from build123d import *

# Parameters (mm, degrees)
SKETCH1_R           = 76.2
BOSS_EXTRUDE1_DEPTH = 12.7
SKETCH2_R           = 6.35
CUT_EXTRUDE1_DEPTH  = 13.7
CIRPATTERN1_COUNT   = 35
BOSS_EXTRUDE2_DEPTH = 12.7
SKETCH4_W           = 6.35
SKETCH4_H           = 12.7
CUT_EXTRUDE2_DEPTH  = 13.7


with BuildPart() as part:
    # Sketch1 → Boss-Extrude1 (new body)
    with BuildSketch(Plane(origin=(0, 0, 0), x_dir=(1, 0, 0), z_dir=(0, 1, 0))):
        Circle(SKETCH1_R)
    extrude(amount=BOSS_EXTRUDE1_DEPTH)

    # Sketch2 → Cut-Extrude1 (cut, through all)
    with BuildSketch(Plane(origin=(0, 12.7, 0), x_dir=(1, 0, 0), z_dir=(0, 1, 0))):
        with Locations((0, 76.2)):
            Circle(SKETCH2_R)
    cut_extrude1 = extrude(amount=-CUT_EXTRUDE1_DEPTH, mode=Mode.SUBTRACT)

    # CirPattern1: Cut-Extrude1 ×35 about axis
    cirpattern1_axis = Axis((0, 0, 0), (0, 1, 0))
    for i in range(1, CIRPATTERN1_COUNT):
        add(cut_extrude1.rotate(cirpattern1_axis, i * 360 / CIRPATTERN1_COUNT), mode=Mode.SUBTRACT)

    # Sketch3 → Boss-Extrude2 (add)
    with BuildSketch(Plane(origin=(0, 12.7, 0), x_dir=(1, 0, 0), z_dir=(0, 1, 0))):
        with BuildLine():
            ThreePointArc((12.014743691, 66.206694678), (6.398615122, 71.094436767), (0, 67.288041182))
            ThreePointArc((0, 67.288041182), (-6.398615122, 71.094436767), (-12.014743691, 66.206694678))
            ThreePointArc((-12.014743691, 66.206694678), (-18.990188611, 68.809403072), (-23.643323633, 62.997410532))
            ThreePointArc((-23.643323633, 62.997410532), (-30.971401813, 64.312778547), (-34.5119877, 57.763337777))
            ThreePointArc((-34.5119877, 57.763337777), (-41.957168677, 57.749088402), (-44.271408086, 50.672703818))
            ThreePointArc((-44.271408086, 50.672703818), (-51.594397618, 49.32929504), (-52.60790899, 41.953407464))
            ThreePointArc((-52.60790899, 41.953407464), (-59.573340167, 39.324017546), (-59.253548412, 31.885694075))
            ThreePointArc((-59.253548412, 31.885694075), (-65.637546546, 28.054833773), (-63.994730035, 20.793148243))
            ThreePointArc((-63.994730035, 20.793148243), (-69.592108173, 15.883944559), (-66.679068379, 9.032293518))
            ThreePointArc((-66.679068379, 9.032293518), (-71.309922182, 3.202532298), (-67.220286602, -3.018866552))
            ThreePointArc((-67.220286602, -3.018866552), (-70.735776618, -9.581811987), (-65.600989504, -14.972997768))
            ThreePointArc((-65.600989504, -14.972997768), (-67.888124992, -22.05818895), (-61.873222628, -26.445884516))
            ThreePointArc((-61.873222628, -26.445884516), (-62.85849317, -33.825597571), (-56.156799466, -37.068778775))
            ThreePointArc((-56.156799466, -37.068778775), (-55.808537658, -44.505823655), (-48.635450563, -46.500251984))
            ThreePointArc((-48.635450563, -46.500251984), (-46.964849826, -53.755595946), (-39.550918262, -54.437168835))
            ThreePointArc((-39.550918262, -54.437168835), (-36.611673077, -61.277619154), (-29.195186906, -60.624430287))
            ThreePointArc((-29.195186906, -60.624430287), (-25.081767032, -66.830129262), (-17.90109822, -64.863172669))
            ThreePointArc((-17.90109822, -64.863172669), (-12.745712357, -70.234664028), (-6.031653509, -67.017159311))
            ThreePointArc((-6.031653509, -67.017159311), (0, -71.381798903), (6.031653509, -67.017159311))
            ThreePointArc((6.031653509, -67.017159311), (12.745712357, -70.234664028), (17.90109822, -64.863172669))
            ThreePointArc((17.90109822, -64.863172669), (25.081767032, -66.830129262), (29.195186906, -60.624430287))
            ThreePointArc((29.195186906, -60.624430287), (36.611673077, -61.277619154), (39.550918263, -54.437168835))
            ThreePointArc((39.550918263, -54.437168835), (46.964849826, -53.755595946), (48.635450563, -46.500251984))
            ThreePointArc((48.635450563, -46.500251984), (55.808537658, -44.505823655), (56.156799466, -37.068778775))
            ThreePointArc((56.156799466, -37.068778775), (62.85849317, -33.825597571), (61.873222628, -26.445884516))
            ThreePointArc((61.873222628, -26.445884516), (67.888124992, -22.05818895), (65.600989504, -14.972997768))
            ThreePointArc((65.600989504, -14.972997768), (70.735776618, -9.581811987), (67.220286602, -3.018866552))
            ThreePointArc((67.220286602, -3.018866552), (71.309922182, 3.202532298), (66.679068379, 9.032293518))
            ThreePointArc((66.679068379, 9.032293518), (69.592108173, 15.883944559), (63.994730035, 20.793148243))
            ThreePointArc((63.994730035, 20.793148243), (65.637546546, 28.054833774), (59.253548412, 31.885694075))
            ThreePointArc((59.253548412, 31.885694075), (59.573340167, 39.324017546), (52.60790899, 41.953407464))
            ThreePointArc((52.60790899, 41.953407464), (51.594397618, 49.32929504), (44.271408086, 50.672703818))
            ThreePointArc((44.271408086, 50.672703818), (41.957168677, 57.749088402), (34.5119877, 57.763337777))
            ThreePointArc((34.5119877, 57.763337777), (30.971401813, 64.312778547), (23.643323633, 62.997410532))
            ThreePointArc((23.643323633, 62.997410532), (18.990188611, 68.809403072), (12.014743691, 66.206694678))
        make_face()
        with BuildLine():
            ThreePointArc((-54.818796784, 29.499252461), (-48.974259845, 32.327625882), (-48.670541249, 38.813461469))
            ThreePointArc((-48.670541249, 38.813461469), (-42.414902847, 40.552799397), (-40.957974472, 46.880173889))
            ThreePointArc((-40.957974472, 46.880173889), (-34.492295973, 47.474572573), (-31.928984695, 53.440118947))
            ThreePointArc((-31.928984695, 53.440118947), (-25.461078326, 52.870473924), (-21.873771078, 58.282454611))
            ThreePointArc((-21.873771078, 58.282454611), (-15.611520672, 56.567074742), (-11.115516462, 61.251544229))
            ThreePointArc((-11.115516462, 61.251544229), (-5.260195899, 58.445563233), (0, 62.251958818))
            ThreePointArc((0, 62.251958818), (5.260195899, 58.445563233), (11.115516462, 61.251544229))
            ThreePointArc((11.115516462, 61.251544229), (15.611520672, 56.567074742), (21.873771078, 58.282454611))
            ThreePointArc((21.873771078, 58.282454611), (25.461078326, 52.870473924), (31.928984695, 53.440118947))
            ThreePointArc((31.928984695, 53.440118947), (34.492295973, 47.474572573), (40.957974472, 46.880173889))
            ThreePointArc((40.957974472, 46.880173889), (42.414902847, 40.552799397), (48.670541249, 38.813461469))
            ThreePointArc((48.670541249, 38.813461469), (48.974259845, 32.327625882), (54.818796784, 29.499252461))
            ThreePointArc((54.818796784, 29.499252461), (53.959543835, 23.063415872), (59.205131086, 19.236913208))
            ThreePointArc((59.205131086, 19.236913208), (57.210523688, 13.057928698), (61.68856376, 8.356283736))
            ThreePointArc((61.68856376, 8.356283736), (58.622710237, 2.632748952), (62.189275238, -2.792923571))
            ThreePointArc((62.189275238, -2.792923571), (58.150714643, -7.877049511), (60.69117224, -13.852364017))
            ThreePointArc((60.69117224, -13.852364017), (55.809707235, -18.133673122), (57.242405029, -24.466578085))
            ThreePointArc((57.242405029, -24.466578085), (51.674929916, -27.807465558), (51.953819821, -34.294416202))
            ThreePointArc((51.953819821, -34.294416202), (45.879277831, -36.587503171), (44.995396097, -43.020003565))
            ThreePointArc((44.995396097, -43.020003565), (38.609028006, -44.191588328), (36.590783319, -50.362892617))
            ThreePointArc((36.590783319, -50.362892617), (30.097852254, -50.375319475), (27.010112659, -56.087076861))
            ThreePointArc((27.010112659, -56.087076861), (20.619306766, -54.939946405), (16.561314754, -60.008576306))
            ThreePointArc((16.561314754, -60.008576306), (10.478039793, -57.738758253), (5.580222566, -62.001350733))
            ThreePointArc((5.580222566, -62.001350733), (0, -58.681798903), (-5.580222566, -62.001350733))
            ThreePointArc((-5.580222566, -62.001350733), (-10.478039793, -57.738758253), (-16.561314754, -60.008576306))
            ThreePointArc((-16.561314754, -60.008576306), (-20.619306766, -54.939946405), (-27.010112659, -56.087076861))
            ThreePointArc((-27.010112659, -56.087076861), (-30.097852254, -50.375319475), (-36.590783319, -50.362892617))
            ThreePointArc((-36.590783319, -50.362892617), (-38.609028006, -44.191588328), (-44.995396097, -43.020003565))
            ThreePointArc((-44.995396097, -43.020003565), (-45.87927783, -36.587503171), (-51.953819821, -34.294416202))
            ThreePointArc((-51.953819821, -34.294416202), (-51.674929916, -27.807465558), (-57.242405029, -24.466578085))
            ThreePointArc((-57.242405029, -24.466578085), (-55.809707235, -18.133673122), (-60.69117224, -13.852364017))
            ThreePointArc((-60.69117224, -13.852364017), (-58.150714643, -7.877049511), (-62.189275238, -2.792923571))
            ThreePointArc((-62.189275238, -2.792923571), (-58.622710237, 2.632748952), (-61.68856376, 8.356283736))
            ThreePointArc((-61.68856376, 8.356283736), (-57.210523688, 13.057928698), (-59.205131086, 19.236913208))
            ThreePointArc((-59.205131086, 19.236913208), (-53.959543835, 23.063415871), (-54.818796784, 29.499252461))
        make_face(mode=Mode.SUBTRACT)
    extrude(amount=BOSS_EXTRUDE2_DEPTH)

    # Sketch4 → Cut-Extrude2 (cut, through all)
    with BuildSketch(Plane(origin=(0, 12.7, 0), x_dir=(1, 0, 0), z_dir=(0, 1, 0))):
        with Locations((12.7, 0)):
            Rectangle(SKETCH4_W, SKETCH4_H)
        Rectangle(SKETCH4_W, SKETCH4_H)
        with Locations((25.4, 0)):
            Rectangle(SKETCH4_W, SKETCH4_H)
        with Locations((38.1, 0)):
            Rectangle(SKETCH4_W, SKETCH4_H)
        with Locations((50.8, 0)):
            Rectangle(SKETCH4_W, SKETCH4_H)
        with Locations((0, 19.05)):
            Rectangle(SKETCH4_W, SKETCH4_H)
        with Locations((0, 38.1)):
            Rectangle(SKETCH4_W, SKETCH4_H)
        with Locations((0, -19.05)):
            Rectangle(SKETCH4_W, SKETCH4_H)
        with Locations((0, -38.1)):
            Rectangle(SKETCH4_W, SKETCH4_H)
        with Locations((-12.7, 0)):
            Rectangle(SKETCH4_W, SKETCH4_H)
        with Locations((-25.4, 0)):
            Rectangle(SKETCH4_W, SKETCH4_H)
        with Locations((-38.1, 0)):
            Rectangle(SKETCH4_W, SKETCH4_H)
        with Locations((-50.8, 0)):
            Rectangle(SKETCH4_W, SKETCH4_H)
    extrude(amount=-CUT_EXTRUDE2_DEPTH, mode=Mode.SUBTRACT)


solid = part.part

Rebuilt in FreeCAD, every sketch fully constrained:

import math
import FreeCAD as App
import Part
import Sketcher
Q = App.Units.Quantity


def add_polygon(sketch, points):
    """Adds a closed chain of lines whose ends are joined by coincident constraints."""
    first, n = sketch.GeometryCount, len(points)
    for a, b in zip(points, points[1:] + points[:1]):
        sketch.addGeometry(Part.LineSegment(App.Vector(*a, 0), App.Vector(*b, 0)), False)
    for i in range(n):
        sketch.addConstraint(Sketcher.Constraint("Coincident", first + i, 2, first + (i + 1) % n, 1))

doc = App.newDocument("Part")
body = doc.addObject("PartDesign::Body", "Body")

sketch1 = body.newObject("Sketcher::SketchObject", "Sketch")
sketch1.AttachmentSupport = (doc.getObject("XZ_Plane"), [""])
sketch1.MapMode = "FlatFace"
sketch1.addGeometry(Part.Circle(App.Vector(0, 0, 0), App.Vector(0, 0, 1), 76.2), False)
sketch1.addConstraint([
    Sketcher.Constraint("Coincident", 0, 3, -1, 1),
    Sketcher.Constraint("Diameter", 0, Q("6 in")),
])
pad1 = body.newObject("PartDesign::Pad", "Pad")
pad1.Profile = sketch1
pad1.Length = Q("0.5 in")
pad1.Reversed = True

sketch2 = body.newObject("Sketcher::SketchObject", "Sketch001")
sketch2.AttachmentSupport = (doc.getObject("XZ_Plane"), [""])
sketch2.MapMode = "FlatFace"
sketch2.AttachmentOffset = App.Placement(App.Vector(0, 0, -0.5 * 25.4), App.Rotation())
sketch2.addGeometry(Part.Circle(App.Vector(0, -76.2, 0), App.Vector(0, 0, 1), 6.35), False)
sketch2.addConstraint([
    Sketcher.Constraint("PointOnObject", 0, 3, -2),
    Sketcher.Constraint("Diameter", 0, Q("0.5 in")),
    Sketcher.Constraint("DistanceY", 0, 3, -1, 1, Q("3 in")),
])
pocket1 = body.newObject("PartDesign::Pocket", "Pocket")
pocket1.Profile = sketch2
pocket1.Type = "ThroughAll"
pocket1.Reversed = True
doc.recompute()

polarpattern = body.newObject("PartDesign::PolarPattern", "PolarPattern")
polarpattern.Originals = [pocket1]
polarpattern.Axis = (doc.getObject("Y_Axis"), [""])
polarpattern.Angle = 360
polarpattern.Occurrences = 35
body.Tip = polarpattern

sketch3 = body.newObject("Sketcher::SketchObject", "Sketch002")
sketch3.AttachmentSupport = (doc.getObject("XZ_Plane"), [""])
sketch3.MapMode = "FlatFace"
sketch3.AttachmentOffset = App.Placement(App.Vector(0, 0, -0.5 * 25.4), App.Rotation())
sketch3.addGeometry([
    Part.ArcOfCircle(Part.Circle(App.Vector(5.829406, -64.77, 0), App.Vector(0, 0, 1), 6.35), math.radians(-156.637826), math.radians(-13.07646)),
    Part.ArcOfCircle(Part.Circle(App.Vector(-5.829406, -64.77, 0), App.Vector(0, 0, 1), 6.35), math.radians(-166.92354), math.radians(-23.362174)),
    Part.ArcOfCircle(Part.Circle(App.Vector(-17.300855, -62.688239, 0), App.Vector(0, 0, 1), 6.35), math.radians(-177.209254), math.radians(-33.647889)),
    Part.ArcOfCircle(Part.Circle(App.Vector(-28.21624, -58.591626, 0), App.Vector(0, 0, 1), 6.35), math.radians(172.505031), math.radians(316.066397)),
    Part.ArcOfCircle(Part.Circle(App.Vector(-38.224732, -52.61183, 0), App.Vector(0, 0, 1), 6.35), math.radians(162.219317), math.radians(305.780683)),
    Part.ArcOfCircle(Part.Circle(App.Vector(-47.00465, -44.941047, 0), App.Vector(0, 0, 1), 6.35), math.radians(151.933603), math.radians(295.494969)),
    Part.ArcOfCircle(Part.Circle(App.Vector(-54.2738, -35.825822, 0), App.Vector(0, 0, 1), 6.35), math.radians(141.647889), math.radians(285.209254)),
    Part.ArcOfCircle(Part.Circle(App.Vector(-59.798545, -25.559125, 0), App.Vector(0, 0, 1), 6.35), math.radians(131.362174), math.radians(274.92354)),
    Part.ArcOfCircle(Part.Circle(App.Vector(-63.401316, -14.470937, 0), App.Vector(0, 0, 1), 6.35), math.radians(121.07646), math.radians(264.637826)),
    Part.ArcOfCircle(Part.Circle(App.Vector(-64.966316, -2.917641, 0), App.Vector(0, 0, 1), 6.35), math.radians(110.790746), math.radians(254.352111)),
    Part.ArcOfCircle(Part.Circle(App.Vector(-64.443246, 8.729431, 0), App.Vector(0, 0, 1), 6.35), math.radians(100.505031), math.radians(244.066397)),
    Part.ArcOfCircle(Part.Circle(App.Vector(-61.848916, 20.095931, 0), App.Vector(0, 0, 1), 6.35), math.radians(90.219317), math.radians(233.780683)),
    Part.ArcOfCircle(Part.Circle(App.Vector(-57.266712, 30.816532, 0), App.Vector(0, 0, 1), 6.35), math.radians(79.933603), math.radians(223.494969)),
    Part.ArcOfCircle(Part.Circle(App.Vector(-50.843908, 40.546663, 0), App.Vector(0, 0, 1), 6.35), math.radians(69.647889), math.radians(213.209254)),
    Part.ArcOfCircle(Part.Circle(App.Vector(-42.786939, 48.973592, 0), App.Vector(0, 0, 1), 6.35), math.radians(59.362174), math.radians(202.92354)),
    Part.ArcOfCircle(Part.Circle(App.Vector(-33.354763, 55.826469, 0), App.Vector(0, 0, 1), 6.35), math.radians(49.07646), math.radians(192.637826)),
    Part.ArcOfCircle(Part.Circle(App.Vector(-22.850537, 60.885038, 0), App.Vector(0, 0, 1), 6.35), math.radians(38.790746), math.radians(182.352111)),
    Part.ArcOfCircle(Part.Circle(App.Vector(-11.611876, 63.986711, 0), App.Vector(0, 0, 1), 6.35), math.radians(28.505031), math.radians(172.066397)),
    Part.ArcOfCircle(Part.Circle(App.Vector(0, 65.031799, 0), App.Vector(0, 0, 1), 6.35), math.radians(18.219317), math.radians(161.780683)),
    Part.ArcOfCircle(Part.Circle(App.Vector(11.611876, 63.986711, 0), App.Vector(0, 0, 1), 6.35), math.radians(7.933603), math.radians(151.494969)),
    Part.ArcOfCircle(Part.Circle(App.Vector(22.850537, 60.885038, 0), App.Vector(0, 0, 1), 6.35), math.radians(-2.352111), math.radians(141.209254)),
    Part.ArcOfCircle(Part.Circle(App.Vector(33.354763, 55.826469, 0), App.Vector(0, 0, 1), 6.35), math.radians(-12.637826), math.radians(130.92354)),
    Part.ArcOfCircle(Part.Circle(App.Vector(42.786939, 48.973592, 0), App.Vector(0, 0, 1), 6.35), math.radians(-22.92354), math.radians(120.637826)),
    Part.ArcOfCircle(Part.Circle(App.Vector(50.843908, 40.546663, 0), App.Vector(0, 0, 1), 6.35), math.radians(-33.209254), math.radians(110.352111)),
    Part.ArcOfCircle(Part.Circle(App.Vector(57.266712, 30.816532, 0), App.Vector(0, 0, 1), 6.35), math.radians(-43.494969), math.radians(100.066397)),
    Part.ArcOfCircle(Part.Circle(App.Vector(61.848916, 20.095931, 0), App.Vector(0, 0, 1), 6.35), math.radians(-53.780683), math.radians(89.780683)),
    Part.ArcOfCircle(Part.Circle(App.Vector(64.443246, 8.729431, 0), App.Vector(0, 0, 1), 6.35), math.radians(-64.066397), math.radians(79.494969)),
    Part.ArcOfCircle(Part.Circle(App.Vector(64.966316, -2.917641, 0), App.Vector(0, 0, 1), 6.35), math.radians(-74.352111), math.radians(69.209254)),
    Part.ArcOfCircle(Part.Circle(App.Vector(63.401316, -14.470937, 0), App.Vector(0, 0, 1), 6.35), math.radians(-84.637826), math.radians(58.92354)),
    Part.ArcOfCircle(Part.Circle(App.Vector(59.798545, -25.559125, 0), App.Vector(0, 0, 1), 6.35), math.radians(-94.92354), math.radians(48.637826)),
    Part.ArcOfCircle(Part.Circle(App.Vector(54.2738, -35.825822, 0), App.Vector(0, 0, 1), 6.35), math.radians(-105.209254), math.radians(38.352111)),
    Part.ArcOfCircle(Part.Circle(App.Vector(47.00465, -44.941047, 0), App.Vector(0, 0, 1), 6.35), math.radians(-115.494969), math.radians(28.066397)),
    Part.ArcOfCircle(Part.Circle(App.Vector(38.224732, -52.61183, 0), App.Vector(0, 0, 1), 6.35), math.radians(-125.780683), math.radians(17.780683)),
    Part.ArcOfCircle(Part.Circle(App.Vector(28.21624, -58.591626, 0), App.Vector(0, 0, 1), 6.35), math.radians(-136.066397), math.radians(7.494969)),
    Part.ArcOfCircle(Part.Circle(App.Vector(17.300855, -62.688239, 0), App.Vector(0, 0, 1), 6.35), math.radians(-146.352111), math.radians(-2.790746)),
    Part.ArcOfCircle(Part.Circle(App.Vector(-59.798545, -25.559125, 0), App.Vector(0, 0, 1), 6.35), math.radians(-38.352111), math.radians(84.637826)),
    Part.ArcOfCircle(Part.Circle(App.Vector(-54.2738, -35.825822, 0), App.Vector(0, 0, 1), 6.35), math.radians(-28.066397), math.radians(94.92354)),
    Part.ArcOfCircle(Part.Circle(App.Vector(-47.00465, -44.941047, 0), App.Vector(0, 0, 1), 6.35), math.radians(-17.780683), math.radians(105.209254)),
    Part.ArcOfCircle(Part.Circle(App.Vector(-38.224732, -52.61183, 0), App.Vector(0, 0, 1), 6.35), math.radians(-7.494969), math.radians(115.494969)),
    Part.ArcOfCircle(Part.Circle(App.Vector(-28.21624, -58.591626, 0), App.Vector(0, 0, 1), 6.35), math.radians(2.790746), math.radians(125.780683)),
    Part.ArcOfCircle(Part.Circle(App.Vector(-17.300855, -62.688239, 0), App.Vector(0, 0, 1), 6.35), math.radians(13.07646), math.radians(136.066397)),
    Part.ArcOfCircle(Part.Circle(App.Vector(-5.829406, -64.77, 0), App.Vector(0, 0, 1), 6.35), math.radians(23.362174), math.radians(146.352111)),
    Part.ArcOfCircle(Part.Circle(App.Vector(5.829406, -64.77, 0), App.Vector(0, 0, 1), 6.35), math.radians(33.647889), math.radians(156.637826)),
    Part.ArcOfCircle(Part.Circle(App.Vector(17.300855, -62.688239, 0), App.Vector(0, 0, 1), 6.35), math.radians(43.933603), math.radians(166.92354)),
    Part.ArcOfCircle(Part.Circle(App.Vector(28.21624, -58.591626, 0), App.Vector(0, 0, 1), 6.35), math.radians(54.219317), math.radians(177.209254)),
    Part.ArcOfCircle(Part.Circle(App.Vector(38.224732, -52.61183, 0), App.Vector(0, 0, 1), 6.35), math.radians(64.505031), math.radians(187.494969)),
    Part.ArcOfCircle(Part.Circle(App.Vector(47.00465, -44.941047, 0), App.Vector(0, 0, 1), 6.35), math.radians(74.790746), math.radians(197.780683)),
    Part.ArcOfCircle(Part.Circle(App.Vector(54.2738, -35.825822, 0), App.Vector(0, 0, 1), 6.35), math.radians(85.07646), math.radians(208.066397)),
    Part.ArcOfCircle(Part.Circle(App.Vector(59.798545, -25.559125, 0), App.Vector(0, 0, 1), 6.35), math.radians(95.362174), math.radians(218.352111)),
    Part.ArcOfCircle(Part.Circle(App.Vector(63.401316, -14.470937, 0), App.Vector(0, 0, 1), 6.35), math.radians(105.647889), math.radians(228.637826)),
    Part.ArcOfCircle(Part.Circle(App.Vector(64.966316, -2.917641, 0), App.Vector(0, 0, 1), 6.35), math.radians(115.933603), math.radians(238.92354)),
    Part.ArcOfCircle(Part.Circle(App.Vector(64.443246, 8.729431, 0), App.Vector(0, 0, 1), 6.35), math.radians(126.219317), math.radians(249.209254)),
    Part.ArcOfCircle(Part.Circle(App.Vector(61.848916, 20.095931, 0), App.Vector(0, 0, 1), 6.35), math.radians(136.505031), math.radians(259.494969)),
    Part.ArcOfCircle(Part.Circle(App.Vector(57.266712, 30.816532, 0), App.Vector(0, 0, 1), 6.35), math.radians(146.790746), math.radians(269.780683)),
    Part.ArcOfCircle(Part.Circle(App.Vector(50.843908, 40.546663, 0), App.Vector(0, 0, 1), 6.35), math.radians(157.07646), math.radians(280.066397)),
    Part.ArcOfCircle(Part.Circle(App.Vector(42.786939, 48.973592, 0), App.Vector(0, 0, 1), 6.35), math.radians(167.362174), math.radians(290.352111)),
    Part.ArcOfCircle(Part.Circle(App.Vector(33.354763, 55.826469, 0), App.Vector(0, 0, 1), 6.35), math.radians(177.647889), math.radians(300.637826)),
    Part.ArcOfCircle(Part.Circle(App.Vector(22.850537, 60.885038, 0), App.Vector(0, 0, 1), 6.35), math.radians(-172.066397), math.radians(-49.07646)),
    Part.ArcOfCircle(Part.Circle(App.Vector(11.611876, 63.986711, 0), App.Vector(0, 0, 1), 6.35), math.radians(-161.780683), math.radians(-38.790746)),
    Part.ArcOfCircle(Part.Circle(App.Vector(0, 65.031799, 0), App.Vector(0, 0, 1), 6.35), math.radians(-151.494969), math.radians(-28.505031)),
    Part.ArcOfCircle(Part.Circle(App.Vector(-11.611876, 63.986711, 0), App.Vector(0, 0, 1), 6.35), math.radians(-141.209254), math.radians(-18.219317)),
    Part.ArcOfCircle(Part.Circle(App.Vector(-22.850537, 60.885038, 0), App.Vector(0, 0, 1), 6.35), math.radians(-130.92354), math.radians(-7.933603)),
    Part.ArcOfCircle(Part.Circle(App.Vector(-33.354763, 55.826469, 0), App.Vector(0, 0, 1), 6.35), math.radians(-120.637826), math.radians(2.352111)),
    Part.ArcOfCircle(Part.Circle(App.Vector(-42.786939, 48.973592, 0), App.Vector(0, 0, 1), 6.35), math.radians(-110.352111), math.radians(12.637826)),
    Part.ArcOfCircle(Part.Circle(App.Vector(-50.843908, 40.546663, 0), App.Vector(0, 0, 1), 6.35), math.radians(-100.066397), math.radians(22.92354)),
    Part.ArcOfCircle(Part.Circle(App.Vector(-57.266712, 30.816532, 0), App.Vector(0, 0, 1), 6.35), math.radians(-89.780683), math.radians(33.209254)),
    Part.ArcOfCircle(Part.Circle(App.Vector(-61.848916, 20.095931, 0), App.Vector(0, 0, 1), 6.35), math.radians(-79.494969), math.radians(43.494969)),
    Part.ArcOfCircle(Part.Circle(App.Vector(-64.443246, 8.729431, 0), App.Vector(0, 0, 1), 6.35), math.radians(-69.209254), math.radians(53.780683)),
    Part.ArcOfCircle(Part.Circle(App.Vector(-64.966316, -2.917641, 0), App.Vector(0, 0, 1), 6.35), math.radians(-58.92354), math.radians(64.066397)),
    Part.ArcOfCircle(Part.Circle(App.Vector(-63.401316, -14.470937, 0), App.Vector(0, 0, 1), 6.35), math.radians(-48.637826), math.radians(74.352111)),
], False)
sketch3.addConstraint([
    Sketcher.Constraint("Coincident", 0, 1, 1, 2),
    Sketcher.Constraint("Coincident", 1, 1, 2, 2),
    Sketcher.Constraint("Coincident", 2, 1, 3, 2),
    Sketcher.Constraint("Coincident", 3, 1, 4, 2),
    Sketcher.Constraint("Coincident", 4, 1, 5, 2),
    Sketcher.Constraint("Coincident", 5, 1, 6, 2),
    Sketcher.Constraint("Coincident", 6, 1, 7, 2),
    Sketcher.Constraint("Coincident", 7, 1, 8, 2),
    Sketcher.Constraint("Coincident", 8, 1, 9, 2),
    Sketcher.Constraint("Coincident", 9, 1, 10, 2),
    Sketcher.Constraint("Coincident", 10, 1, 11, 2),
    Sketcher.Constraint("Coincident", 11, 1, 12, 2),
    Sketcher.Constraint("Coincident", 12, 1, 13, 2),
    Sketcher.Constraint("Coincident", 13, 1, 14, 2),
    Sketcher.Constraint("Coincident", 14, 1, 15, 2),
    Sketcher.Constraint("Coincident", 15, 1, 16, 2),
    Sketcher.Constraint("Coincident", 16, 1, 17, 2),
    Sketcher.Constraint("Coincident", 17, 1, 18, 2),
    Sketcher.Constraint("Coincident", 18, 1, 19, 2),
    Sketcher.Constraint("Coincident", 19, 1, 20, 2),
    Sketcher.Constraint("Coincident", 20, 1, 21, 2),
    Sketcher.Constraint("Coincident", 21, 1, 22, 2),
    Sketcher.Constraint("Coincident", 22, 1, 23, 2),
    Sketcher.Constraint("Coincident", 23, 1, 24, 2),
    Sketcher.Constraint("Coincident", 24, 1, 25, 2),
    Sketcher.Constraint("Coincident", 25, 1, 26, 2),
    Sketcher.Constraint("Coincident", 26, 1, 27, 2),
    Sketcher.Constraint("Coincident", 27, 1, 28, 2),
    Sketcher.Constraint("Coincident", 28, 1, 29, 2),
    Sketcher.Constraint("Coincident", 29, 1, 30, 2),
    Sketcher.Constraint("Coincident", 30, 1, 31, 2),
    Sketcher.Constraint("Coincident", 31, 1, 32, 2),
    Sketcher.Constraint("Coincident", 32, 1, 33, 2),
    Sketcher.Constraint("Coincident", 33, 1, 34, 2),
    Sketcher.Constraint("Coincident", 34, 1, 0, 2),
    Sketcher.Constraint("Coincident", 35, 1, 36, 2),
    Sketcher.Constraint("Coincident", 36, 1, 37, 2),
    Sketcher.Constraint("Coincident", 37, 1, 38, 2),
    Sketcher.Constraint("Coincident", 38, 1, 39, 2),
    Sketcher.Constraint("Coincident", 39, 1, 40, 2),
    Sketcher.Constraint("Coincident", 40, 1, 41, 2),
    Sketcher.Constraint("Coincident", 41, 1, 42, 2),
    Sketcher.Constraint("Coincident", 42, 1, 43, 2),
    Sketcher.Constraint("Coincident", 43, 1, 44, 2),
    Sketcher.Constraint("Coincident", 44, 1, 45, 2),
    Sketcher.Constraint("Coincident", 45, 1, 46, 2),
    Sketcher.Constraint("Coincident", 46, 1, 47, 2),
    Sketcher.Constraint("Coincident", 47, 1, 48, 2),
    Sketcher.Constraint("Coincident", 48, 1, 49, 2),
    Sketcher.Constraint("Coincident", 49, 1, 50, 2),
    Sketcher.Constraint("Coincident", 50, 1, 51, 2),
    Sketcher.Constraint("Coincident", 51, 1, 52, 2),
    Sketcher.Constraint("Coincident", 52, 1, 53, 2),
    Sketcher.Constraint("Coincident", 53, 1, 54, 2),
    Sketcher.Constraint("Coincident", 54, 1, 55, 2),
    Sketcher.Constraint("Coincident", 55, 1, 56, 2),
    Sketcher.Constraint("Coincident", 56, 1, 57, 2),
    Sketcher.Constraint("Coincident", 57, 1, 58, 2),
    Sketcher.Constraint("Coincident", 58, 1, 59, 2),
    Sketcher.Constraint("Coincident", 59, 1, 60, 2),
    Sketcher.Constraint("Coincident", 60, 1, 61, 2),
    Sketcher.Constraint("Coincident", 61, 1, 62, 2),
    Sketcher.Constraint("Coincident", 62, 1, 63, 2),
    Sketcher.Constraint("Coincident", 63, 1, 64, 2),
    Sketcher.Constraint("Coincident", 64, 1, 65, 2),
    Sketcher.Constraint("Coincident", 65, 1, 66, 2),
    Sketcher.Constraint("Coincident", 66, 1, 67, 2),
    Sketcher.Constraint("Coincident", 67, 1, 68, 2),
    Sketcher.Constraint("Coincident", 68, 1, 69, 2),
    Sketcher.Constraint("Coincident", 69, 1, 35, 2),
    Sketcher.Constraint("Coincident", 35, 3, 7, 3),
    Sketcher.Constraint("Coincident", 36, 3, 6, 3),
    Sketcher.Constraint("Coincident", 37, 3, 5, 3),
    Sketcher.Constraint("Coincident", 38, 3, 4, 3),
    Sketcher.Constraint("Coincident", 39, 3, 3, 3),
    Sketcher.Constraint("Coincident", 40, 3, 2, 3),
    Sketcher.Constraint("Coincident", 41, 3, 1, 3),
    Sketcher.Constraint("Coincident", 42, 3, 0, 3),
    Sketcher.Constraint("Coincident", 43, 3, 34, 3),
    Sketcher.Constraint("Coincident", 44, 3, 33, 3),
    Sketcher.Constraint("Coincident", 45, 3, 32, 3),
    Sketcher.Constraint("Coincident", 46, 3, 31, 3),
    Sketcher.Constraint("Coincident", 47, 3, 30, 3),
    Sketcher.Constraint("Coincident", 48, 3, 29, 3),
    Sketcher.Constraint("Coincident", 49, 3, 28, 3),
    Sketcher.Constraint("Coincident", 50, 3, 27, 3),
    Sketcher.Constraint("Coincident", 51, 3, 26, 3),
    Sketcher.Constraint("Coincident", 52, 3, 25, 3),
    Sketcher.Constraint("Coincident", 53, 3, 24, 3),
    Sketcher.Constraint("Coincident", 54, 3, 23, 3),
    Sketcher.Constraint("Coincident", 55, 3, 22, 3),
    Sketcher.Constraint("Coincident", 56, 3, 21, 3),
    Sketcher.Constraint("Coincident", 57, 3, 20, 3),
    Sketcher.Constraint("Coincident", 58, 3, 19, 3),
    Sketcher.Constraint("Coincident", 59, 3, 18, 3),
    Sketcher.Constraint("Coincident", 60, 3, 17, 3),
    Sketcher.Constraint("Coincident", 61, 3, 16, 3),
    Sketcher.Constraint("Coincident", 62, 3, 15, 3),
    Sketcher.Constraint("Coincident", 63, 3, 14, 3),
    Sketcher.Constraint("Coincident", 64, 3, 13, 3),
    Sketcher.Constraint("Coincident", 65, 3, 12, 3),
    Sketcher.Constraint("Coincident", 66, 3, 11, 3),
    Sketcher.Constraint("Coincident", 67, 3, 10, 3),
    Sketcher.Constraint("Coincident", 68, 3, 9, 3),
    Sketcher.Constraint("Coincident", 69, 3, 8, 3),
    Sketcher.Constraint("Equal", 0, 1),
    Sketcher.Constraint("Equal", 1, 2),
    Sketcher.Constraint("Equal", 2, 3),
    Sketcher.Constraint("Equal", 3, 4),
    Sketcher.Constraint("Equal", 4, 5),
    Sketcher.Constraint("Equal", 5, 6),
    Sketcher.Constraint("Equal", 6, 7),
    Sketcher.Constraint("Equal", 7, 8),
    Sketcher.Constraint("Equal", 8, 9),
    Sketcher.Constraint("Equal", 9, 10),
    Sketcher.Constraint("Equal", 10, 11),
    Sketcher.Constraint("Equal", 11, 12),
    Sketcher.Constraint("Equal", 12, 13),
    Sketcher.Constraint("Equal", 13, 14),
    Sketcher.Constraint("Equal", 14, 15),
    Sketcher.Constraint("Equal", 15, 16),
    Sketcher.Constraint("Equal", 16, 17),
    Sketcher.Constraint("Equal", 17, 18),
    Sketcher.Constraint("Equal", 18, 19),
    Sketcher.Constraint("Equal", 19, 20),
    Sketcher.Constraint("Equal", 20, 21),
    Sketcher.Constraint("Equal", 21, 22),
    Sketcher.Constraint("Equal", 22, 23),
    Sketcher.Constraint("Equal", 23, 24),
    Sketcher.Constraint("Equal", 24, 25),
    Sketcher.Constraint("Equal", 25, 26),
    Sketcher.Constraint("Equal", 26, 27),
    Sketcher.Constraint("Equal", 27, 28),
    Sketcher.Constraint("Equal", 28, 29),
    Sketcher.Constraint("Equal", 29, 30),
    Sketcher.Constraint("Equal", 30, 31),
    Sketcher.Constraint("Equal", 31, 32),
    Sketcher.Constraint("Equal", 32, 33),
    Sketcher.Constraint("Equal", 33, 34),
    Sketcher.Constraint("Equal", 34, 35),
    Sketcher.Constraint("Equal", 35, 36),
    Sketcher.Constraint("Equal", 36, 37),
    Sketcher.Constraint("Equal", 37, 38),
    Sketcher.Constraint("Equal", 38, 39),
    Sketcher.Constraint("Equal", 39, 40),
    Sketcher.Constraint("Equal", 40, 41),
    Sketcher.Constraint("Equal", 41, 42),
    Sketcher.Constraint("Equal", 42, 43),
    Sketcher.Constraint("Equal", 43, 44),
    Sketcher.Constraint("Equal", 44, 45),
    Sketcher.Constraint("Equal", 45, 46),
    Sketcher.Constraint("Equal", 46, 47),
    Sketcher.Constraint("Equal", 47, 48),
    Sketcher.Constraint("Equal", 48, 49),
    Sketcher.Constraint("Equal", 49, 50),
    Sketcher.Constraint("Equal", 50, 51),
    Sketcher.Constraint("Equal", 51, 52),
    Sketcher.Constraint("Equal", 52, 53),
    Sketcher.Constraint("Equal", 53, 54),
    Sketcher.Constraint("Equal", 54, 55),
    Sketcher.Constraint("Equal", 55, 56),
    Sketcher.Constraint("Equal", 56, 57),
    Sketcher.Constraint("Equal", 57, 58),
    Sketcher.Constraint("Equal", 58, 59),
    Sketcher.Constraint("Equal", 59, 60),
    Sketcher.Constraint("Equal", 60, 61),
    Sketcher.Constraint("Equal", 61, 62),
    Sketcher.Constraint("Equal", 62, 63),
    Sketcher.Constraint("Equal", 63, 64),
    Sketcher.Constraint("Equal", 64, 65),
    Sketcher.Constraint("Equal", 65, 66),
    Sketcher.Constraint("Equal", 66, 67),
    Sketcher.Constraint("Equal", 67, 68),
    Sketcher.Constraint("Equal", 68, 69),
    Sketcher.Constraint("Symmetric", 0, 3, 1, 3, -2),
    Sketcher.Constraint("Symmetric", 17, 3, 19, 3, -2),
    Sketcher.Constraint("Symmetric", 16, 3, 20, 3, -2),
    Sketcher.Constraint("Symmetric", 15, 3, 21, 3, -2),
    Sketcher.Constraint("Symmetric", 14, 3, 22, 3, -2),
    Sketcher.Constraint("Symmetric", 13, 3, 23, 3, -2),
    Sketcher.Constraint("Symmetric", 12, 3, 24, 3, -2),
    Sketcher.Constraint("Symmetric", 11, 3, 25, 3, -2),
    Sketcher.Constraint("Symmetric", 10, 3, 26, 3, -2),
    Sketcher.Constraint("Symmetric", 9, 3, 27, 3, -2),
    Sketcher.Constraint("Symmetric", 8, 3, 28, 3, -2),
    Sketcher.Constraint("Symmetric", 7, 3, 29, 3, -2),
    Sketcher.Constraint("Symmetric", 6, 3, 30, 3, -2),
    Sketcher.Constraint("Symmetric", 5, 3, 31, 3, -2),
    Sketcher.Constraint("Symmetric", 4, 3, 32, 3, -2),
    Sketcher.Constraint("Symmetric", 3, 3, 33, 3, -2),
    Sketcher.Constraint("Symmetric", 2, 3, 34, 3, -2),
    Sketcher.Constraint("PointOnObject", 18, 3, -2),
    Sketcher.Constraint("Radius", 0, Q("0.25 in")),
    Sketcher.Constraint("DistanceY", 0, 3, -1, 1, Q("2.55 in")),
    Sketcher.Constraint("DistanceX", 6, 3, -1, 1, 54.2738),
    Sketcher.Constraint("DistanceY", -1, 1, 18, 3, 65.031799),
    Sketcher.Constraint("DistanceX", 12, 1, -1, 1, 56.156799),
    Sketcher.Constraint("DistanceX", 16, 1, -1, 1, 17.901098),
    Sketcher.Constraint("DistanceY", 2, 3, -1, 1, 62.688239),
    Sketcher.Constraint("DistanceX", 3, 3, -1, 1, 28.21624),
    Sketcher.Constraint("DistanceY", 4, 3, -1, 1, 52.61183),
    Sketcher.Constraint("DistanceX", 5, 3, -1, 1, 47.00465),
    Sketcher.Constraint("DistanceY", 6, 3, -1, 1, 35.825822),
    Sketcher.Constraint("DistanceY", 9, 3, -1, 1, 2.917641),
    Sketcher.Constraint("DistanceY", -1, 1, 10, 3, 8.729431),
    Sketcher.Constraint("DistanceY", -1, 1, 11, 3, 20.095931),
    Sketcher.Constraint("DistanceX", 12, 3, -1, 1, 57.266712),
    Sketcher.Constraint("DistanceY", -1, 1, 12, 3, 30.816532),
    Sketcher.Constraint("DistanceX", 14, 3, -1, 1, 42.786939),
    Sketcher.Constraint("DistanceY", -1, 1, 15, 3, 55.826469),
    Sketcher.Constraint("DistanceY", -1, 1, 17, 3, 63.986711),
    Sketcher.Constraint("DistanceY", 0, 1, -1, 1, 67.288041),
    Sketcher.Constraint("DistanceY", 2, 1, -1, 1, 62.997411),
    Sketcher.Constraint("DistanceX", 4, 1, -1, 1, 44.271408),
    Sketcher.Constraint("DistanceX", 5, 1, -1, 1, 52.607909),
    Sketcher.Constraint("DistanceX", 6, 1, -1, 1, 59.253548),
    Sketcher.Constraint("DistanceX", 7, 1, -1, 1, 63.99473),
    Sketcher.Constraint("DistanceY", 7, 1, -1, 1, 20.793148),
    Sketcher.Constraint("DistanceX", 8, 1, -1, 1, 66.679068),
    Sketcher.Constraint("DistanceX", 10, 1, -1, 1, 65.60099),
    Sketcher.Constraint("DistanceX", 13, 1, -1, 1, 48.635451),
    Sketcher.Constraint("DistanceY", -1, 1, 13, 1, 46.500252),
    Sketcher.Constraint("DistanceX", 14, 1, -1, 1, 39.550918),
    Sketcher.Constraint("DistanceY", -1, 1, 15, 1, 60.62443),
    Sketcher.Constraint("DistanceY", -1, 1, 17, 1, 67.017159),
    Sketcher.Constraint("DistanceY", 38, 1, -1, 1, 53.440119),
    Sketcher.Constraint("DistanceX", -1, 1, 48, 1, 59.205131),
    Sketcher.Constraint("DistanceX", 10, 3, -1, 1, 64.443246),
])
pad2 = body.newObject("PartDesign::Pad", "Pad001")
pad2.Profile = sketch3
pad2.Length = Q("0.5 in")
pad2.Reversed = True

sketch4 = body.newObject("Sketcher::SketchObject", "Sketch003")
sketch4.AttachmentSupport = (doc.getObject("XZ_Plane"), [""])
sketch4.MapMode = "FlatFace"
sketch4.AttachmentOffset = App.Placement(App.Vector(0, 0, -0.5 * 25.4), App.Rotation())
add_polygon(sketch4, [(9.525, -6.35), (9.525, 6.35), (15.875, 6.35), (15.875, -6.35)])
add_polygon(sketch4, [(-3.175, -6.35), (-3.175, 6.35), (3.175, 6.35), (3.175, -6.35)])
add_polygon(sketch4, [(22.225, -6.35), (22.225, 6.35), (28.575, 6.35), (28.575, -6.35)])
add_polygon(sketch4, [(34.925, -6.35), (34.925, 6.35), (41.275, 6.35), (41.275, -6.35)])
add_polygon(sketch4, [(47.625, -6.35), (47.625, 6.35), (53.975, 6.35), (53.975, -6.35)])
add_polygon(sketch4, [(-3.175, -25.4), (-3.175, -12.7), (3.175, -12.7), (3.175, -25.4)])
add_polygon(sketch4, [(-3.175, -44.45), (-3.175, -31.75), (3.175, -31.75), (3.175, -44.45)])
add_polygon(sketch4, [(-3.175, 12.7), (-3.175, 25.4), (3.175, 25.4), (3.175, 12.7)])
add_polygon(sketch4, [(-3.175, 31.75), (-3.175, 44.45), (3.175, 44.45), (3.175, 31.75)])
add_polygon(sketch4, [(-15.875, -6.35), (-15.875, 6.35), (-9.525, 6.35), (-9.525, -6.35)])
add_polygon(sketch4, [(-28.575, -6.35), (-28.575, 6.35), (-22.225, 6.35), (-22.225, -6.35)])
add_polygon(sketch4, [(-41.275, -6.35), (-41.275, 6.35), (-34.925, 6.35), (-34.925, -6.35)])
add_polygon(sketch4, [(-53.975, -6.35), (-53.975, 6.35), (-47.625, 6.35), (-47.625, -6.35)])
sketch4.addConstraint([
    Sketcher.Constraint("Vertical", 0),
    Sketcher.Constraint("Horizontal", 1),
    Sketcher.Constraint("Vertical", 2),
    Sketcher.Constraint("Horizontal", 3),
    Sketcher.Constraint("Vertical", 4),
    Sketcher.Constraint("Horizontal", 5),
    Sketcher.Constraint("Vertical", 6),
    Sketcher.Constraint("Horizontal", 7),
    Sketcher.Constraint("Vertical", 8),
    Sketcher.Constraint("Horizontal", 9),
    Sketcher.Constraint("Vertical", 10),
    Sketcher.Constraint("Horizontal", 11),
    Sketcher.Constraint("Vertical", 12),
    Sketcher.Constraint("Horizontal", 13),
    Sketcher.Constraint("Vertical", 14),
    Sketcher.Constraint("Horizontal", 15),
    Sketcher.Constraint("Vertical", 16),
    Sketcher.Constraint("Horizontal", 17),
    Sketcher.Constraint("Vertical", 18),
    Sketcher.Constraint("Horizontal", 19),
    Sketcher.Constraint("Vertical", 20),
    Sketcher.Constraint("Horizontal", 21),
    Sketcher.Constraint("Vertical", 22),
    Sketcher.Constraint("Horizontal", 23),
    Sketcher.Constraint("Vertical", 24),
    Sketcher.Constraint("Horizontal", 25),
    Sketcher.Constraint("Vertical", 26),
    Sketcher.Constraint("Horizontal", 27),
    Sketcher.Constraint("Vertical", 28),
    Sketcher.Constraint("Horizontal", 29),
    Sketcher.Constraint("Vertical", 30),
    Sketcher.Constraint("Horizontal", 31),
    Sketcher.Constraint("Vertical", 32),
    Sketcher.Constraint("Horizontal", 33),
    Sketcher.Constraint("Vertical", 34),
    Sketcher.Constraint("Horizontal", 35),
    Sketcher.Constraint("Vertical", 36),
    Sketcher.Constraint("Horizontal", 37),
    Sketcher.Constraint("Vertical", 38),
    Sketcher.Constraint("Horizontal", 39),
    Sketcher.Constraint("Vertical", 40),
    Sketcher.Constraint("Horizontal", 41),
    Sketcher.Constraint("Vertical", 42),
    Sketcher.Constraint("Horizontal", 43),
    Sketcher.Constraint("Vertical", 44),
    Sketcher.Constraint("Horizontal", 45),
    Sketcher.Constraint("Vertical", 46),
    Sketcher.Constraint("Horizontal", 47),
    Sketcher.Constraint("Vertical", 48),
    Sketcher.Constraint("Horizontal", 49),
    Sketcher.Constraint("Vertical", 50),
    Sketcher.Constraint("Horizontal", 51),
    Sketcher.Constraint("Symmetric", 4, 2, 6, 2, -1, 1),
    Sketcher.Constraint("Symmetric", 22, 2, 28, 2, -1, 1),
    Sketcher.Constraint("Symmetric", 20, 2, 30, 2, -1, 1),
    Sketcher.Constraint("Symmetric", 26, 2, 32, 2, -1, 1),
    Sketcher.Constraint("Symmetric", 24, 2, 34, 2, -1, 1),
    Sketcher.Constraint("Symmetric", 2, 2, 36, 2, -1, 1),
    Sketcher.Constraint("Symmetric", 0, 2, 38, 2, -1, 1),
    Sketcher.Constraint("Symmetric", 10, 2, 40, 2, -1, 1),
    Sketcher.Constraint("Symmetric", 8, 2, 42, 2, -1, 1),
    Sketcher.Constraint("Symmetric", 14, 2, 44, 2, -1, 1),
    Sketcher.Constraint("Symmetric", 12, 2, 46, 2, -1, 1),
    Sketcher.Constraint("Symmetric", 18, 2, 48, 2, -1, 1),
    Sketcher.Constraint("Symmetric", 16, 2, 50, 2, -1, 1),
    Sketcher.Constraint("Horizontal", 1, 2, 4, 2),
    Sketcher.Constraint("Horizontal", 3, 2, 6, 2),
    Sketcher.Constraint("Horizontal", 5, 2, 8, 2),
    Sketcher.Constraint("Horizontal", 7, 2, 10, 2),
    Sketcher.Constraint("Horizontal", 9, 2, 12, 2),
    Sketcher.Constraint("Horizontal", 11, 2, 14, 2),
    Sketcher.Constraint("Horizontal", 13, 2, 16, 2),
    Sketcher.Constraint("Horizontal", 15, 2, 18, 2),
    Sketcher.Constraint("Vertical", 7, 2, 20, 2),
    Sketcher.Constraint("Vertical", 6, 2, 21, 2),
    Sketcher.Constraint("Vertical", 23, 2, 24, 2),
    Sketcher.Constraint("Vertical", 22, 2, 25, 2),
    Sketcher.Constraint("Equal", 3, 5),
    Sketcher.Constraint("Equal", 7, 9),
    Sketcher.Constraint("Equal", 11, 13),
    Sketcher.Constraint("Equal", 15, 17),
    Sketcher.Constraint("Equal", 18, 20),
    Sketcher.Constraint("Equal", 22, 24),
    Sketcher.Constraint("DistanceY", 0, 1, 0, 2, Q("0.5 in")),
    Sketcher.Constraint("DistanceY", 22, 2, -1, 1, Q("1 in")),
    Sketcher.Constraint("DistanceY", 24, 2, 7, 2, Q("1 in")),
    Sketcher.Constraint("DistanceX", 40, 2, 4, 2, Q("1 in")),
    Sketcher.Constraint("DistanceX", 44, 2, 36, 2, Q("1 in")),
    Sketcher.Constraint("DistanceX", 48, 2, 40, 2, Q("1 in")),
    Sketcher.Constraint("DistanceX", 1, 1, 1, 2, Q("0.25 in")),
    Sketcher.Constraint("DistanceX", 4, 2, 0, 2, Q("0.5 in")),
])
pocket2 = body.newObject("PartDesign::Pocket", "Pocket001")
pocket2.Profile = sketch4
pocket2.Type = "ThroughAll"
pocket2.Reversed = True

doc.recompute()
